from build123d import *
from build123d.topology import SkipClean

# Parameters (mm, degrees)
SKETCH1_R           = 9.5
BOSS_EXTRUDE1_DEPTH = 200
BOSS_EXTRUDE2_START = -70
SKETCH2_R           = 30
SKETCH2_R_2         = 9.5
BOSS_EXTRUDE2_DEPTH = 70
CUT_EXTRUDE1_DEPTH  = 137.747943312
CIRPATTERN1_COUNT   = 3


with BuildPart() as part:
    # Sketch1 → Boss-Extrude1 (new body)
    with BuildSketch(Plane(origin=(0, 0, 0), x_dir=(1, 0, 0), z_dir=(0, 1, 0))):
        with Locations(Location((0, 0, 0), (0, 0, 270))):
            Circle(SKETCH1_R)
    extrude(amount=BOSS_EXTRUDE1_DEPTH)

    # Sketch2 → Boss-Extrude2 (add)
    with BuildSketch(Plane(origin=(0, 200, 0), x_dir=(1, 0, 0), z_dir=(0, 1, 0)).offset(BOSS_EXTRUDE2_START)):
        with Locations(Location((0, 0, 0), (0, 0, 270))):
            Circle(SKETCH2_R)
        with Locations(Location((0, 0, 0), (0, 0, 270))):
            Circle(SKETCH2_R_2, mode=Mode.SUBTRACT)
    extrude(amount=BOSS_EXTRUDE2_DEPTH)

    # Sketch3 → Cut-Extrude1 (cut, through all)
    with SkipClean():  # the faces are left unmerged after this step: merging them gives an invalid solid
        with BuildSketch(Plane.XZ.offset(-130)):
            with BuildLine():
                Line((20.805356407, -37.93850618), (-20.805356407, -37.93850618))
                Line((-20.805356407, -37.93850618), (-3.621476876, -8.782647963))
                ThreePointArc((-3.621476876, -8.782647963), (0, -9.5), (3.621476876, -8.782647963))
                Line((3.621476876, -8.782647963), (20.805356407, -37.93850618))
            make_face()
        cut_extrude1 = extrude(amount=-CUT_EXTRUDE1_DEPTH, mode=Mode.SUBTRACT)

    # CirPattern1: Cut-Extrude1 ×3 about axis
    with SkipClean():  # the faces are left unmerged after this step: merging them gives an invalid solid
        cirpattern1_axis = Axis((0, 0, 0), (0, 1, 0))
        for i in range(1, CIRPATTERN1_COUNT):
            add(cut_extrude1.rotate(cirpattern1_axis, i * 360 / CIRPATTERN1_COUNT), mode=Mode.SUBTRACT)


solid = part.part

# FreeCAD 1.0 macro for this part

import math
import FreeCAD as App
import Part
import Sketcher
from FreeCAD import Vector

doc = App.newDocument("Part")
body = doc.addObject("PartDesign::Body", "Body")

# Sketch on XZ plane
sketch1 = body.newObject("Sketcher::SketchObject", "Sketch")
sketch1.AttachmentSupport = (doc.getObject("XZ_Plane"), [""])
sketch1.MapMode = "FlatFace"
sketch1.addGeometry(Part.Circle(Vector(0, 0, 0), Vector(0, 0, 1), 10), False)
sketch1.addConstraint([
    Sketcher.Constraint("Coincident", 0, 3, -1, 1),
    Sketcher.Constraint("Diameter", 0, 19.0),
])
pad1 = body.newObject("PartDesign::Pad", "Pad")
pad1.Profile = sketch1
pad1.Length = 200
pad1.Reversed = True

# Sketch on XZ plane
sketch2 = body.newObject("Sketcher::SketchObject", "Sketch001")
sketch2.AttachmentSupport = (doc.getObject("XZ_Plane"), [""])
sketch2.MapMode = "FlatFace"
sketch2.AttachmentOffset = App.Placement(Vector(0, 0, -130), App.Rotation())
sketch2.addGeometry([
    Part.Circle(Vector(0, 0, 0), Vector(0, 0, 1), 30),
    Part.Circle(Vector(0, 0, 0), Vector(0, 0, 1), 10),
], False)
sketch2.addConstraint([
    Sketcher.Constraint("Coincident", 0, 3, -1, 1),
    Sketcher.Constraint("Coincident", 1, 3, -1, 1),
    Sketcher.Constraint("Diameter", 0, 60.0),
    Sketcher.Constraint("Diameter", 1, 19.0),
])
pad2 = body.newObject("PartDesign::Pad", "Pad001")
pad2.Profile = sketch2
pad2.Length = 70
pad2.Reversed = True

# Sketch on XZ plane
sketch3 = body.newObject("Sketcher::SketchObject", "Sketch002")
sketch3.AttachmentSupport = (doc.getObject("XZ_Plane"), [""])
sketch3.MapMode = "FlatFace"
sketch3.AttachmentOffset = App.Placement(Vector(0, 0, -130), App.Rotation())
sketch3.addGeometry([
    Part.LineSegment(Vector(-21, -38, 0), Vector(21, -38, 0)),
    Part.LineSegment(Vector(21, -38, 0), Vector(4, -9, 0)),
    Part.ArcOfCircle(Part.Circle(Vector(0, 0, 0), Vector(0, 0, 1), 10), math.radians(-112), math.radians(-68)),
    Part.LineSegment(Vector(-4, -9, 0), Vector(-21, -38, 0)),
], False)
sketch3.addConstraint([
    Sketcher.Constraint("Coincident", 0, 2, 1, 1),
    Sketcher.Constraint("Coincident", 1, 2, 2, 2),
    Sketcher.Constraint("Coincident", 2, 1, 3, 1),
    Sketcher.Constraint("Coincident", 3, 2, 0, 1),
    Sketcher.Constraint("Horizontal", 0),
    Sketcher.Constraint("Coincident", 2, 3, -1, 1),
    Sketcher.Constraint("Horizontal", 1, 2, 2, 1),
    Sketcher.Constraint("Equal", 1, 3),
    Sketcher.Constraint("Radius", 2, 9.5),
    Sketcher.Constraint("DistanceX", 0, 1, 0, 2, 41.610713),
    Sketcher.Constraint("DistanceX", 1, 2, 0, 2, 17.18388),
    Sketcher.Constraint("DistanceY", 0, 2, 1, 2, 29.155858),
])
pocket1 = body.newObject("PartDesign::Pocket", "Pocket")
pocket1.Profile = sketch3
pocket1.Type = "ThroughAll"
doc.recompute()

polarpattern = body.newObject("PartDesign::PolarPattern", "PolarPattern")
polarpattern.Originals = [pocket1]
polarpattern.Axis = (doc.getObject("Y_Axis"), [""])
polarpattern.Angle = 360
polarpattern.Occurrences = 3
body.Tip = polarpattern

doc.recompute()
